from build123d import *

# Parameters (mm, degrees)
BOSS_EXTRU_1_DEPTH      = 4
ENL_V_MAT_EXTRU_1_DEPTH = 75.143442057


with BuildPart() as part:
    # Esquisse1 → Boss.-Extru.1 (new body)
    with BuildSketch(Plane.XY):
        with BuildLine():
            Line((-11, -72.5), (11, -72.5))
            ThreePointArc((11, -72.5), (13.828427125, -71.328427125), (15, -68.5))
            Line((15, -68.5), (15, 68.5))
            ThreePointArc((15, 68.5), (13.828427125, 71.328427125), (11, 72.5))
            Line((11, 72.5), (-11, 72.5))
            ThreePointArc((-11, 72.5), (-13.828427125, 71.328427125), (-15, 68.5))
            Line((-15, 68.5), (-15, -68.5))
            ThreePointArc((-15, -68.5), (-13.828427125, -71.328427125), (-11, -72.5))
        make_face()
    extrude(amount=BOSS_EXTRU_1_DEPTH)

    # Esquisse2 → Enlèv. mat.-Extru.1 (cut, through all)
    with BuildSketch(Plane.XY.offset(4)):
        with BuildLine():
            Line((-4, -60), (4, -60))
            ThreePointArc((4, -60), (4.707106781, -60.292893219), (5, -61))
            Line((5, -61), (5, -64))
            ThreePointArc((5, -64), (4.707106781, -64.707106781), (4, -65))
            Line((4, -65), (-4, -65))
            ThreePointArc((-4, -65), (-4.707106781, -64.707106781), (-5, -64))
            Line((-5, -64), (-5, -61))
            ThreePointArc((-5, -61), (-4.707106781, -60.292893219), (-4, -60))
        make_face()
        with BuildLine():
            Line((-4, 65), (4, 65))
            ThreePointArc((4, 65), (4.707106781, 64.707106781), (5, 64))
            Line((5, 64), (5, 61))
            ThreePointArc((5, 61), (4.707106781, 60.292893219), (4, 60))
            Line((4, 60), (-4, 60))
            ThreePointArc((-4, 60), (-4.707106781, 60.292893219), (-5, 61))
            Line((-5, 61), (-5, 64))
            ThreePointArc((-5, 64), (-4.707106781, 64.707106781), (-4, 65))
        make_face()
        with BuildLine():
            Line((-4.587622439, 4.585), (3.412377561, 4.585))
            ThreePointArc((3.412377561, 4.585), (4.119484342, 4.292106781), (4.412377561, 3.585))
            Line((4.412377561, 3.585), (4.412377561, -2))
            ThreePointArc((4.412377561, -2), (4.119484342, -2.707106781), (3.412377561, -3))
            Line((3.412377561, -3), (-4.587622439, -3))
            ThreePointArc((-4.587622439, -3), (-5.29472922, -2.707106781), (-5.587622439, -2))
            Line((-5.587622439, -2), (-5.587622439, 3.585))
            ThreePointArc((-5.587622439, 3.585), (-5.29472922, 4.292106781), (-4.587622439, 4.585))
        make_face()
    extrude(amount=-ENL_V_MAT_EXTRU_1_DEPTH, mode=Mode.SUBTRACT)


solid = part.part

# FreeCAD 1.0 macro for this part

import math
import FreeCAD as App
import Part
import Sketcher

doc = App.newDocument("Part")
body = doc.addObject("PartDesign::Body", "Body")

# Sketch on XY plane
sketch1 = doc.addObject("Sketcher::SketchObject", "Sketch")
body.addObject(sketch1)
sketch1.AttachmentSupport = (doc.XY_Plane, [""])
sketch1.MapMode = "FlatFace"
sketch1.addGeometry([
    Part.LineSegment(App.Vector(-11, -72.5, 0), App.Vector(11, -72.5, 0)),  # 0
    Part.ArcOfCircle(Part.Circle(App.Vector(11, -68.5, 0), App.Vector(0, 0, 1), 4), math.radians(-90), math.radians(0)),  # 1
    Part.LineSegment(App.Vector(15, -68.5, 0), App.Vector(15, 68.5, 0)),  # 2
    Part.ArcOfCircle(Part.Circle(App.Vector(11, 68.5, 0), App.Vector(0, 0, 1), 4), math.radians(0), math.radians(90)),  # 3
    Part.LineSegment(App.Vector(11, 72.5, 0), App.Vector(-11, 72.5, 0)),  # 4
    Part.ArcOfCircle(Part.Circle(App.Vector(-11, 68.5, 0), App.Vector(0, 0, 1), 4), math.radians(90), math.radians(180)),  # 5
    Part.LineSegment(App.Vector(-15, 68.5, 0), App.Vector(-15, -68.5, 0)),  # 6
    Part.ArcOfCircle(Part.Circle(App.Vector(-11, -68.5, 0), App.Vector(0, 0, 1), 4), math.radians(180), math.radians(270)),  # 7
], False)
sketch1.addConstraint([
    Sketcher.Constraint("Tangent", 0, 2, 1, 1),
    Sketcher.Constraint("Tangent", 1, 2, 2, 1),
    Sketcher.Constraint("Tangent", 2, 2, 3, 1),
    Sketcher.Constraint("Tangent", 3, 2, 4, 1),
    Sketcher.Constraint("Tangent", 4, 2, 5, 1),
    Sketcher.Constraint("Tangent", 5, 2, 6, 1),
    Sketcher.Constraint("Tangent", 6, 2, 7, 1),
    Sketcher.Constraint("Tangent", 7, 2, 0, 1),
    Sketcher.Constraint("Horizontal", 0),
    Sketcher.Constraint("Vertical", 2),
    Sketcher.Constraint("Horizontal", 4),
    Sketcher.Constraint("Vertical", 6),
    Sketcher.Constraint("Equal", 1, 3),
    Sketcher.Constraint("Equal", 3, 5),
    Sketcher.Constraint("Equal", 5, 7),
    Sketcher.Constraint("Symmetric", 1, 3, 5, 3, -1, 1),
    Sketcher.Constraint("Radius", 1, 4.0),
    Sketcher.Constraint("DistanceX", 0, 1, 0, 2, 22.0),
    Sketcher.Constraint("DistanceY", 2, 1, 2, 2, 137.0),
])
pad1 = doc.addObject("PartDesign::Pad", "Pad")
body.addObject(pad1)
pad1.Profile = sketch1
pad1.Length = 4

# Sketch on XY plane
sketch2 = doc.addObject("Sketcher::SketchObject", "Sketch001")
body.addObject(sketch2)
sketch2.AttachmentSupport = (doc.XY_Plane, [""])
sketch2.MapMode = "FlatFace"
sketch2.AttachmentOffset = App.Placement(App.Vector(0, 0, 4), App.Rotation())
sketch2.addGeometry([
    Part.LineSegment(App.Vector(4, -60, 0), App.Vector(-4, -60, 0)),  # 0
    Part.ArcOfCircle(Part.Circle(App.Vector(-4, -61, 0), App.Vector(0, 0, 1), 1), math.radians(90), math.radians(180)),  # 1
    Part.LineSegment(App.Vector(-5, -61, 0), App.Vector(-5, -64, 0)),  # 2
    Part.ArcOfCircle(Part.Circle(App.Vector(-4, -64, 0), App.Vector(0, 0, 1), 1), math.radians(-180), math.radians(-90)),  # 3
    Part.LineSegment(App.Vector(-4, -65, 0), App.Vector(4, -65, 0)),  # 4
    Part.ArcOfCircle(Part.Circle(App.Vector(4, -64, 0), App.Vector(0, 0, 1), 1), math.radians(-90), math.radians(0)),  # 5
    Part.LineSegment(App.Vector(5, -64, 0), App.Vector(5, -61, 0)),  # 6
    Part.ArcOfCircle(Part.Circle(App.Vector(4, -61, 0), App.Vector(0, 0, 1), 1), math.radians(0), math.radians(90)),  # 7
    Part.LineSegment(App.Vector(4, 65, 0), App.Vector(-4, 65, 0)),  # 8
    Part.ArcOfCircle(Part.Circle(App.Vector(-4, 64, 0), App.Vector(0, 0, 1), 1), math.radians(90), math.radians(180)),  # 9
    Part.LineSegment(App.Vector(-5, 64, 0), App.Vector(-5, 61, 0)),  # 10
    Part.ArcOfCircle(Part.Circle(App.Vector(-4, 61, 0), App.Vector(0, 0, 1), 1), math.radians(-180), math.radians(-90)),  # 11
    Part.LineSegment(App.Vector(-4, 60, 0), App.Vector(4, 60, 0)),  # 12
    Part.ArcOfCircle(Part.Circle(App.Vector(4, 61, 0), App.Vector(0, 0, 1), 1), math.radians(-90), math.radians(0)),  # 13
    Part.LineSegment(App.Vector(5, 61, 0), App.Vector(5, 64, 0)),  # 14
    Part.ArcOfCircle(Part.Circle(App.Vector(4, 64, 0), App.Vector(0, 0, 1), 1), math.radians(0), math.radians(90)),  # 15
    Part.LineSegment(App.Vector(3.4, 4.6, 0), App.Vector(-4.6, 4.6, 0)),  # 16
    Part.ArcOfCircle(Part.Circle(App.Vector(-4.6, 3.6, 0), App.Vector(0, 0, 1), 1), math.radians(90), math.radians(180)),  # 17
    Part.LineSegment(App.Vector(-5.6, 3.6, 0), App.Vector(-5.6, -2, 0)),  # 18
    Part.ArcOfCircle(Part.Circle(App.Vector(-4.6, -2, 0), App.Vector(0, 0, 1), 1), math.radians(-180), math.radians(-90)),  # 19
    Part.LineSegment(App.Vector(-4.6, -3, 0), App.Vector(3.4, -3, 0)),  # 20
    Part.ArcOfCircle(Part.Circle(App.Vector(3.4, -2, 0), App.Vector(0, 0, 1), 1), math.radians(-90), math.radians(0)),  # 21
    Part.LineSegment(App.Vector(4.4, -2, 0), App.Vector(4.4, 3.6, 0)),  # 22
    Part.ArcOfCircle(Part.Circle(App.Vector(3.4, 3.6, 0), App.Vector(0, 0, 1), 1), math.radians(0), math.radians(90)),  # 23
], False)
sketch2.addConstraint([
    Sketcher.Constraint("Tangent", 0, 2, 1, 1),
    Sketcher.Constraint("Tangent", 1, 2, 2, 1),
    Sketcher.Constraint("Tangent", 2, 2, 3, 1),
    Sketcher.Constraint("Tangent", 3, 2, 4, 1),
    Sketcher.Constraint("Tangent", 4, 2, 5, 1),
    Sketcher.Constraint("Tangent", 5, 2, 6, 1),
    Sketcher.Constraint("Tangent", 6, 2, 7, 1),
    Sketcher.Constraint("Tangent", 7, 2, 0, 1),
    Sketcher.Constraint("Tangent", 8, 2, 9, 1),
    Sketcher.Constraint("Tangent", 9, 2, 10, 1),
    Sketcher.Constraint("Tangent", 10, 2, 11, 1),
    Sketcher.Constraint("Tangent", 11, 2, 12, 1),
    Sketcher.Constraint("Tangent", 12, 2, 13, 1),
    Sketcher.Constraint("Tangent", 13, 2, 14, 1),
    Sketcher.Constraint("Tangent", 14, 2, 15, 1),
    Sketcher.Constraint("Tangent", 15, 2, 8, 1),
    Sketcher.Constraint("Tangent", 16, 2, 17, 1),
    Sketcher.Constraint("Tangent", 17, 2, 18, 1),
    Sketcher.Constraint("Tangent", 18, 2, 19, 1),
    Sketcher.Constraint("Tangent", 19, 2, 20, 1),
    Sketcher.Constraint("Tangent", 20, 2, 21, 1),
    Sketcher.Constraint("Tangent", 21, 2, 22, 1),
    Sketcher.Constraint("Tangent", 22, 2, 23, 1),
    Sketcher.Constraint("Tangent", 23, 2, 16, 1),
    Sketcher.Constraint("Horizontal", 0),
    Sketcher.Constraint("Vertical", 2),
    Sketcher.Constraint("Horizontal", 4),
    Sketcher.Constraint("Vertical", 6),
    Sketcher.Constraint("Horizontal", 8),
    Sketcher.Constraint("Vertical", 10),
    Sketcher.Constraint("Horizontal", 12),
    Sketcher.Constraint("Vertical", 14),
    Sketcher.Constraint("Horizontal", 16),
    Sketcher.Constraint("Vertical", 18),
    Sketcher.Constraint("Horizontal", 20),
    Sketcher.Constraint("Vertical", 22),
    Sketcher.Constraint("Equal", 1, 3),
    Sketcher.Constraint("Equal", 3, 5),
    Sketcher.Constraint("Equal", 5, 7),
    Sketcher.Constraint("Equal", 7, 9),
    Sketcher.Constraint("Equal", 9, 11),
    Sketcher.Constraint("Equal", 11, 13),
    Sketcher.Constraint("Equal", 13, 15),
    Sketcher.Constraint("Equal", 15, 17),
    Sketcher.Constraint("Equal", 17, 19),
    Sketcher.Constraint("Equal", 19, 21),
    Sketcher.Constraint("Equal", 21, 23),
    Sketcher.Constraint("Symmetric", 5, 3, 9, 3, -1, 1),
    Sketcher.Constraint("Symmetric", 1, 3, 13, 3, -1, 1),
    Sketcher.Constraint("Vertical", 3, 3, 9, 3),
    Sketcher.Constraint("Equal", 12, 16),
    Sketcher.Constraint("Radius", 1, 1.0),
    Sketcher.Constraint("DistanceX", 0, 2, 0, 1, 8.0),
    Sketcher.Constraint("DistanceY", 2, 2, 2, 1, 3.0),
    Sketcher.Constraint("DistanceY", 1, 3, -1, 1, 61.0),
    Sketcher.Constraint("DistanceY", 19, 3, -1, 1, 2.0),
    Sketcher.Constraint("DistanceY", 18, 2, 18, 1, 5.585),
    Sketcher.Constraint("DistanceX", 17, 3, -1, 1, 4.587622),
])
pocket1 = doc.addObject("PartDesign::Pocket", "Pocket")
body.addObject(pocket1)
pocket1.Profile = sketch2
pocket1.Type = "ThroughAll"

doc.recompute()
